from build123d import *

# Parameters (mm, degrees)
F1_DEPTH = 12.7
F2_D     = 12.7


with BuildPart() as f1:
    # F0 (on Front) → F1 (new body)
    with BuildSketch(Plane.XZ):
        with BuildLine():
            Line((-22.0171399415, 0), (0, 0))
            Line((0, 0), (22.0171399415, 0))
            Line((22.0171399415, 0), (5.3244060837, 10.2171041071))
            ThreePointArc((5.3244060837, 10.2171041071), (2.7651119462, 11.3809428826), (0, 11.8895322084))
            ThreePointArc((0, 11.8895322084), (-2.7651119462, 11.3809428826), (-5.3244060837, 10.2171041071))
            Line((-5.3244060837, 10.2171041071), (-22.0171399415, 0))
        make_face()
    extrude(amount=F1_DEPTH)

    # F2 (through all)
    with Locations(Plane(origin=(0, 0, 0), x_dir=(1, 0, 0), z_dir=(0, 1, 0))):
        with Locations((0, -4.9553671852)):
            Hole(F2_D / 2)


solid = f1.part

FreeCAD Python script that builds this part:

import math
import FreeCAD as App
import Part
import Sketcher

V = App.Vector
Q = App.Units.Quantity

doc = App.newDocument("Part")
params = doc.addObject("Spreadsheet::Sheet", "Params")
for row, (alias, value) in enumerate([
    ("pad1_length", "0.5 in"),
    ("sketch2_diameter", "0.5 in"),
    ("hole_diameter", "0.5 in"),
], start=1):
    params.set(f"A{row}", alias)
    params.set(f"B{row}", "=" + value)
    params.setAlias(f"B{row}", alias)

body = doc.addObject("PartDesign::Body", "Body")

# Sketch on XZ plane
sketch1 = body.newObject("Sketcher::SketchObject", "Sketch")
sketch1.AttachmentSupport = (doc.getObject("XZ_Plane"), [""])
sketch1.MapMode = "FlatFace"
sketch1.addGeometry([
    Part.LineSegment(V(-22, 0, 0), V(22, 0, 0)),  # 0
    Part.LineSegment(V(22, 0, 0), V(5, 10, 0)),  # 1
    Part.ArcOfCircle(Part.Circle(V(-1, 0, 0), V(0, 0, 1), 12), math.radians(59), math.radians(87)),  # 2
    Part.ArcOfCircle(Part.Circle(V(1, 0, 0), V(0, 0, 1), 12), math.radians(93), math.radians(121)),  # 3
    Part.LineSegment(V(-5, 10, 0), V(-22, 0, 0)),  # 4
], False)
sketch1.addConstraint([
    Sketcher.Constraint("Coincident", 0, 2, 1, 1),
    Sketcher.Constraint("Tangent", 1, 2, 2, 1),
    Sketcher.Constraint("Coincident", 2, 2, 3, 1),
    Sketcher.Constraint("Tangent", 3, 2, 4, 1),
    Sketcher.Constraint("Coincident", 4, 2, 0, 1),
    Sketcher.Constraint("Horizontal", 0),
    Sketcher.Constraint("Equal", 2, 3),
    Sketcher.Constraint("Symmetric", 0, 2, 4, 2, -1, 1),
    Sketcher.Constraint("Symmetric", 2, 3, 3, 3, -2),
    Sketcher.Constraint("Radius", 2, Q("11.508957 mm")),
    Sketcher.Constraint("DistanceX", 0, 1, 0, 2, Q("44.03428 mm")),
    Sketcher.Constraint("Distance", 1, Q("19.57132 mm")),
    Sketcher.Constraint("DistanceX", 2, 3, 1, 2, Q("6.00819 mm")),
])
pad1 = body.newObject("PartDesign::Pad", "Pad")
pad1.Profile = sketch1
pad1.setExpression("Length", "Params.pad1_length")

# Sketch on XZ plane
sketch2 = body.newObject("Sketcher::SketchObject", "Sketch001")
sketch2.AttachmentSupport = (doc.getObject("XZ_Plane"), [""])
sketch2.MapMode = "FlatFace"
sketch2.addGeometry(Part.Circle(V(0, 5, 0), V(0, 0, 1), 6), False)
sketch2.addConstraint([
    Sketcher.Constraint("PointOnObject", 0, 3, -2),
    Sketcher.Constraint("Diameter", 0, Q("0.5 in")),
    Sketcher.Constraint("DistanceY", -1, 1, 0, 3, Q("4.955367 mm")),
])
sketch2.setExpression("Constraints[1]", "Params.sketch2_diameter")
doc.recompute()
hole = body.newObject("PartDesign::Hole", "Hole")
hole.Profile = sketch2
hole.ThreadType = "None"
hole.setExpression("Diameter", "Params.hole_diameter")
hole.DepthType = "ThroughAll"
hole.Reversed = True

doc.recompute()
